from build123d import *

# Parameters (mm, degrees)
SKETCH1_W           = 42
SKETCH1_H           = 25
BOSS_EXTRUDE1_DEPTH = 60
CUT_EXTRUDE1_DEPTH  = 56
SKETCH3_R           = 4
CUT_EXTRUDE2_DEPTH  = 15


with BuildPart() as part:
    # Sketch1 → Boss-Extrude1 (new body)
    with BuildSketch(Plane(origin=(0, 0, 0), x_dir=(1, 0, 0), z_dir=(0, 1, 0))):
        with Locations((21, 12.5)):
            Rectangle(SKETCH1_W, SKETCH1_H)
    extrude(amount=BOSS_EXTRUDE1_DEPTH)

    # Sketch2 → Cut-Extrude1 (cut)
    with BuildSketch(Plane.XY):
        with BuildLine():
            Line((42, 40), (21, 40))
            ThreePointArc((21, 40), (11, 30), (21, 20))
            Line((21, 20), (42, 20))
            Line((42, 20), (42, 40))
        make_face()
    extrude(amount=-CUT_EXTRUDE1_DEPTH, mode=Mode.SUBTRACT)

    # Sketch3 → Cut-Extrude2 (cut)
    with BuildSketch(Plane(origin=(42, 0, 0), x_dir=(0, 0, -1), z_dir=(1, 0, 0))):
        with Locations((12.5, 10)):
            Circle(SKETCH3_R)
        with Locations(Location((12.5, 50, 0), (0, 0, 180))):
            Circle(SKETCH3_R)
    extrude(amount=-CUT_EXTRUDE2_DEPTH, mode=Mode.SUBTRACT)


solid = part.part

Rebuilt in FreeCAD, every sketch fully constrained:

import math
import FreeCAD as App
import Part
import Sketcher


def add_polygon(sketch, points):
    """Adds a closed chain of lines whose ends are joined by coincident constraints."""
    first, n = sketch.GeometryCount, len(points)
    for a, b in zip(points, points[1:] + points[:1]):
        sketch.addGeometry(Part.LineSegment(App.Vector(*a, 0), App.Vector(*b, 0)), False)
    for i in range(n):
        sketch.addConstraint(Sketcher.Constraint("Coincident", first + i, 2, first + (i + 1) % n, 1))

doc = App.newDocument("Part")
body = doc.addObject("PartDesign::Body", "Body")

sketch1 = doc.addObject("Sketcher::SketchObject", "Sketch")
body.addObject(sketch1)
sketch1.AttachmentSupport = (doc.XZ_Plane, [""])
sketch1.MapMode = "FlatFace"
add_polygon(sketch1, [(0, -25), (0, 0), (42, 0), (42, -25)])
sketch1.addConstraint([
    Sketcher.Constraint("Vertical", 0),
    Sketcher.Constraint("Horizontal", 1),
    Sketcher.Constraint("Vertical", 2),
    Sketcher.Constraint("Horizontal", 3),
    Sketcher.Constraint("Coincident", 0, 2, -1, 1),
    Sketcher.Constraint("DistanceX", 1, 1, 1, 2, 42.0),
    Sketcher.Constraint("DistanceY", 0, 1, 0, 2, 25.0),
])
pad1 = doc.addObject("PartDesign::Pad", "Pad")
body.addObject(pad1)
pad1.Profile = sketch1
pad1.Length = 60
pad1.Reversed = True

sketch2 = doc.addObject("Sketcher::SketchObject", "Sketch001")
body.addObject(sketch2)
sketch2.AttachmentSupport = (doc.XY_Plane, [""])
sketch2.MapMode = "FlatFace"
sketch2.addGeometry([
    Part.LineSegment(App.Vector(42, 40, 0), App.Vector(21, 40, 0)),
    Part.ArcOfCircle(Part.Circle(App.Vector(21, 30, 0), App.Vector(0, 0, 1), 10), math.radians(90), math.radians(270)),
    Part.LineSegment(App.Vector(21, 20, 0), App.Vector(42, 20, 0)),
    Part.LineSegment(App.Vector(42, 20, 0), App.Vector(42, 40, 0)),
], False)
sketch2.addConstraint([
    Sketcher.Constraint("Tangent", 0, 2, 1, 1),
    Sketcher.Constraint("Tangent", 1, 2, 2, 1),
    Sketcher.Constraint("Coincident", 2, 2, 3, 1),
    Sketcher.Constraint("Coincident", 3, 2, 0, 1),
    Sketcher.Constraint("Horizontal", 0),
    Sketcher.Constraint("Horizontal", 2),
    Sketcher.Constraint("Vertical", 3),
    Sketcher.Constraint("Radius", 1, 10.0),
    Sketcher.Constraint("DistanceX", 0, 2, 0, 1, 21.0),
    Sketcher.Constraint("DistanceX", -1, 1, 1, 3, 21.0),
    Sketcher.Constraint("DistanceY", -1, 1, 1, 3, 30.0),
])
pocket1 = doc.addObject("PartDesign::Pocket", "Pocket")
body.addObject(pocket1)
pocket1.Profile = sketch2
pocket1.Length = 56

sketch3 = doc.addObject("Sketcher::SketchObject", "Sketch002")
body.addObject(sketch3)
sketch3.AttachmentSupport = (doc.YZ_Plane, [""])
sketch3.MapMode = "FlatFace"
sketch3.AttachmentOffset = App.Placement(App.Vector(0, 0, 42), App.Rotation())
sketch3.addGeometry([
    Part.Circle(App.Vector(10, -12.5, 0), App.Vector(0, 0, 1), 4),
    Part.Circle(App.Vector(50, -12.5, 0), App.Vector(0, 0, 1), 4),
], False)
sketch3.addConstraint([
    Sketcher.Constraint("Equal", 0, 1),
    Sketcher.Constraint("Horizontal", 0, 3, 1, 3),
    Sketcher.Constraint("Diameter", 0, 8.0),
    Sketcher.Constraint("DistanceX", -1, 1, 0, 3, 10.0),
    Sketcher.Constraint("DistanceX", -1, 1, 1, 3, 50.0),
    Sketcher.Constraint("DistanceY", 0, 3, -1, 1, 12.5),
])
pocket2 = doc.addObject("PartDesign::Pocket", "Pocket001")
body.addObject(pocket2)
pocket2.Profile = sketch3
pocket2.Length = 15

doc.recompute()
